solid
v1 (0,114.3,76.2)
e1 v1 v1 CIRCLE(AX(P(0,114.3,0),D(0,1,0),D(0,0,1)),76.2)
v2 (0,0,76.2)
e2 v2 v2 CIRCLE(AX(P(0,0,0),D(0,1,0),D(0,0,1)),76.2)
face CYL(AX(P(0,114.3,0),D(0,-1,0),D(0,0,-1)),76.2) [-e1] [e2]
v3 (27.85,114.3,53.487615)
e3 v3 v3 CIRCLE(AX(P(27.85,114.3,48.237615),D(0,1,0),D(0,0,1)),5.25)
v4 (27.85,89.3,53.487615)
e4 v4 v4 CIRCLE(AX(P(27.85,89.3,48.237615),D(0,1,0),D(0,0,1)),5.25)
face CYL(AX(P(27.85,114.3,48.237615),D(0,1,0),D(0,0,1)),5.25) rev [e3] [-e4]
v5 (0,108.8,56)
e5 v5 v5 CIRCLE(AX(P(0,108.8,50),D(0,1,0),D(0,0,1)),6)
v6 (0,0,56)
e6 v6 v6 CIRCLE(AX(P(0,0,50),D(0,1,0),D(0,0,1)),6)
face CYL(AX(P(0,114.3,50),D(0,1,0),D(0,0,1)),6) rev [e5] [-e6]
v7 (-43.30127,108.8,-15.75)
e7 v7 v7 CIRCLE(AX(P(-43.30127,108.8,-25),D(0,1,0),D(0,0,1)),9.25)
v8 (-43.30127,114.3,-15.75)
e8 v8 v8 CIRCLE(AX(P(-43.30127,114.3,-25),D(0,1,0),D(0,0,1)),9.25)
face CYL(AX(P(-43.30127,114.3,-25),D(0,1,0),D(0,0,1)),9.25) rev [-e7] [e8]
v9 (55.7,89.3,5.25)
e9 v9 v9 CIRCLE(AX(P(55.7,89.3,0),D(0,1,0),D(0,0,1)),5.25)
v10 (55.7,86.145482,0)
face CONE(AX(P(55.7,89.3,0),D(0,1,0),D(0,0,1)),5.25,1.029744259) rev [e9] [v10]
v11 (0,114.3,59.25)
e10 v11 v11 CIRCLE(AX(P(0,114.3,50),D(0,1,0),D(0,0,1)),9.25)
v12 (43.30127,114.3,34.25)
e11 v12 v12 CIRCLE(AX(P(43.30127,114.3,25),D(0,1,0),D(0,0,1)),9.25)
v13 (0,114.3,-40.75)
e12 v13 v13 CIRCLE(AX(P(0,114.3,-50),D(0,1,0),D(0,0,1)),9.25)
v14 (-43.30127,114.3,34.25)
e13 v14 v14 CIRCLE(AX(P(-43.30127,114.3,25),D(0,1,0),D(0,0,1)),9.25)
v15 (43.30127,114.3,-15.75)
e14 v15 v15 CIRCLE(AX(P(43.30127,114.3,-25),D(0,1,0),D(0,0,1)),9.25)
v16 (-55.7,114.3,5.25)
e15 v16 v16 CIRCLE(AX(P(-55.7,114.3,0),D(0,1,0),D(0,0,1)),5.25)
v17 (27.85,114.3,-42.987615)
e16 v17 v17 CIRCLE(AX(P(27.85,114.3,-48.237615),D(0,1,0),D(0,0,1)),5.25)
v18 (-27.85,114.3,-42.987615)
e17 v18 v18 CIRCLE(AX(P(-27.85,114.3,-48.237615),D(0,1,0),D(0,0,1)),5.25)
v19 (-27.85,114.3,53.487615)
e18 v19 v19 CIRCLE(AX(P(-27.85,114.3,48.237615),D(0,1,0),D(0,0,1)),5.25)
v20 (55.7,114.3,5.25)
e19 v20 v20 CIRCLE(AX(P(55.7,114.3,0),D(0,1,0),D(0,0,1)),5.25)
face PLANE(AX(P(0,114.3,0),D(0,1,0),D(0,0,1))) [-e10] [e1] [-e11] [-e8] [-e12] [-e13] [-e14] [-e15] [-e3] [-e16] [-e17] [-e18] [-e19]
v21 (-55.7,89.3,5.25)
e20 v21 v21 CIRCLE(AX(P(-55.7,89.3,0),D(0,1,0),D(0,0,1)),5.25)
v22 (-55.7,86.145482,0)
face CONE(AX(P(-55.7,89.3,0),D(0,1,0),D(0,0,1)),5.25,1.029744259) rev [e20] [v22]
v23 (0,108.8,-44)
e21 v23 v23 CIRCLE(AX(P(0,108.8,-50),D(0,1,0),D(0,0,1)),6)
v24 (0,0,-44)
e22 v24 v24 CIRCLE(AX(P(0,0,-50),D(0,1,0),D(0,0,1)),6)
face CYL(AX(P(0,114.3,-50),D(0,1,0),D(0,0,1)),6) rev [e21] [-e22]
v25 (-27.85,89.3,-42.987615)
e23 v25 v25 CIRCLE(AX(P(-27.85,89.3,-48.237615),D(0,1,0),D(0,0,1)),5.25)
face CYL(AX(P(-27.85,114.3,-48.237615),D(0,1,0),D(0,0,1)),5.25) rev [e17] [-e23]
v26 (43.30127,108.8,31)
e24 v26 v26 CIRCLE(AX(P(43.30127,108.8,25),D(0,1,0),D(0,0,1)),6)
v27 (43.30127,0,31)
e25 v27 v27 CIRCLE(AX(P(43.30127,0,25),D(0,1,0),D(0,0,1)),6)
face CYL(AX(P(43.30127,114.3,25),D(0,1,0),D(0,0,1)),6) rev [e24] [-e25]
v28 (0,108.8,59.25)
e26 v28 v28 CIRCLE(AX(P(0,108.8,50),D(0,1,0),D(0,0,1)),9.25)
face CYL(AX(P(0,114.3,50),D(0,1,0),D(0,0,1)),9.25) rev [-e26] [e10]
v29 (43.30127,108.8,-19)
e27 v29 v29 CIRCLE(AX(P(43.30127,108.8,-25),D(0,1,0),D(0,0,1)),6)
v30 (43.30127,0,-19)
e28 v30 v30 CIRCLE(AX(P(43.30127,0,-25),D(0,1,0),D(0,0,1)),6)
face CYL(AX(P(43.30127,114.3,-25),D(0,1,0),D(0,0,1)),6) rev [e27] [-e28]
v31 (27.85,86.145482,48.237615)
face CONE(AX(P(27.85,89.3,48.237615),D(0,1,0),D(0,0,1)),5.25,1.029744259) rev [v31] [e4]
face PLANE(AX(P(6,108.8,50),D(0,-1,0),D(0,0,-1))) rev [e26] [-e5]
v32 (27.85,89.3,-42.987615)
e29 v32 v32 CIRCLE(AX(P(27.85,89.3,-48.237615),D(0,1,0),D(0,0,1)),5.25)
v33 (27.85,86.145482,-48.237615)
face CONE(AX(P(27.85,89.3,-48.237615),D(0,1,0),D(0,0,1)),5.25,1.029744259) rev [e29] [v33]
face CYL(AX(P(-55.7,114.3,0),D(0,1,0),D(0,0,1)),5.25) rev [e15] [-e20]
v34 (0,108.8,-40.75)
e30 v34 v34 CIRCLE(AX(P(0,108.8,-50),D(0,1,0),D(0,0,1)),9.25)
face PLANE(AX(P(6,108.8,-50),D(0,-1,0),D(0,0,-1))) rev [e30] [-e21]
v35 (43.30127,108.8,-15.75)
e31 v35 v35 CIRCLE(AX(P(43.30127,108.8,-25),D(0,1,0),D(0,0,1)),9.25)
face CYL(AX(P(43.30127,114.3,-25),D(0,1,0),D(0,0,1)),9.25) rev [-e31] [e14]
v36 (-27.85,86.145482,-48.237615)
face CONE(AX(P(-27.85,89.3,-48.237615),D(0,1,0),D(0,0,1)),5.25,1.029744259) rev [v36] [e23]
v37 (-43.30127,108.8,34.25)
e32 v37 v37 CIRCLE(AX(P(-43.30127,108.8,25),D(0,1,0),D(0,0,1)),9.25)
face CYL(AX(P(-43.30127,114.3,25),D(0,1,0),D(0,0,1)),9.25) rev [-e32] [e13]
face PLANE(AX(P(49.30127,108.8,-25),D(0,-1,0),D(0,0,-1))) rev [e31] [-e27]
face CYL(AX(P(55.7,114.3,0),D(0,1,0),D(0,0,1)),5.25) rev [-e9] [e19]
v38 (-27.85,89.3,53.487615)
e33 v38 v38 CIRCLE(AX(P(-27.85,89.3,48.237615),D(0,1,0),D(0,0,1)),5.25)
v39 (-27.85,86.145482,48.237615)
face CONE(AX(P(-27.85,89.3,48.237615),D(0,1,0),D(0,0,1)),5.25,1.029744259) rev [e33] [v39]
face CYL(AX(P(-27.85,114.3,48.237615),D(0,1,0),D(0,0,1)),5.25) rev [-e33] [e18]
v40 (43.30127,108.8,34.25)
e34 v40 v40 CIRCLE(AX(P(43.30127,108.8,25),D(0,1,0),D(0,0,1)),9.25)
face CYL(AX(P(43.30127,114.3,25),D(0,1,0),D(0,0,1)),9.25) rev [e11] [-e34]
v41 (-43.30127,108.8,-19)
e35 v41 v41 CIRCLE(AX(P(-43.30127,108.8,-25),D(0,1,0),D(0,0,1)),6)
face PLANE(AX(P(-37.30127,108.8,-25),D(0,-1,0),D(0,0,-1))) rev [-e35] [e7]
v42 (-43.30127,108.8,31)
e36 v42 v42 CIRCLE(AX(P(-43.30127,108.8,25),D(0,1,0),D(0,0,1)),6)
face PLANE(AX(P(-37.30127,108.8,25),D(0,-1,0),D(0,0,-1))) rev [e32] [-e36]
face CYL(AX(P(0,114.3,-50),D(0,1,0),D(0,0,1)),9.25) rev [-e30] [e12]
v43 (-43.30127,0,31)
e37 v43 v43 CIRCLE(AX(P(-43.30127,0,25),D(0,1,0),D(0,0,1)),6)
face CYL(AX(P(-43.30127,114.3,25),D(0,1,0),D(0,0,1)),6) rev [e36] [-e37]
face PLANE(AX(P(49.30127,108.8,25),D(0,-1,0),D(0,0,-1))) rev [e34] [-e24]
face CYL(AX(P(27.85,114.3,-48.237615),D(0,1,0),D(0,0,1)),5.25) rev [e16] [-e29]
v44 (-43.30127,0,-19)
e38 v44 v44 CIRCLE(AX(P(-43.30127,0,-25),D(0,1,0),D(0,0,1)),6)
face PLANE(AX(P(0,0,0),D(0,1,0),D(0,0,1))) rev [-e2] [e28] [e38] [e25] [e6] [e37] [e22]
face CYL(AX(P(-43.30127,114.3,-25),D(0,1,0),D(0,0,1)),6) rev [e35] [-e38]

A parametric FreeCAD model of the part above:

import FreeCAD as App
import Part
import Sketcher
from FreeCAD import Vector
Q = App.Units.Quantity

doc = App.newDocument("Part")
body = doc.addObject("PartDesign::Body", "Body")

# Sketch on XZ plane
sketch1 = body.newObject("Sketcher::SketchObject", "Sketch")
sketch1.AttachmentSupport = (doc.getObject("XZ_Plane"), [""])
sketch1.MapMode = "FlatFace"
sketch1.addGeometry(Part.Circle(Vector(0, 0, 0), Vector(0, 0, 1), 76.2), False)
sketch1.addConstraint([
    Sketcher.Constraint("Coincident", 0, 3, -1, 1),
    Sketcher.Constraint("Diameter", 0, 152.4),
])
pad1 = body.newObject("PartDesign::Pad", "Pad")
pad1.Profile = sketch1
pad1.Length = 114.3
pad1.Reversed = True

# Sketch on XZ plane
sketch2 = body.newObject("Sketcher::SketchObject", "Sketch001")
sketch2.AttachmentSupport = (doc.getObject("XZ_Plane"), [""])
sketch2.MapMode = "FlatFace"
sketch2.AttachmentOffset = App.Placement(Vector(0, 0, -114.3), App.Rotation())
sketch2.addGeometry([
    Part.Circle(Vector(0, -50, 0), Vector(0, 0, 1), 6),  # 0
    Part.Circle(Vector(43.30127, -25, 0), Vector(0, 0, 1), 6),  # 1
    Part.Circle(Vector(43.30127, 25, 0), Vector(0, 0, 1), 6),  # 2
    Part.Circle(Vector(0, 50, 0), Vector(0, 0, 1), 6),  # 3
    Part.Circle(Vector(-43.30127, 25, 0), Vector(0, 0, 1), 6),  # 4
    Part.Circle(Vector(-43.30127, -25, 0), Vector(0, 0, 1), 6),  # 5
], False)
sketch2.addConstraint([
    Sketcher.Constraint("Equal", 0, 1),
    Sketcher.Constraint("Equal", 1, 2),
    Sketcher.Constraint("Equal", 2, 3),
    Sketcher.Constraint("Equal", 3, 4),
    Sketcher.Constraint("Equal", 4, 5),
    Sketcher.Constraint("Symmetric", 0, 3, 3, 3, -1, 1),
    Sketcher.Constraint("Symmetric", 1, 3, 4, 3, -1, 1),
    Sketcher.Constraint("Symmetric", 2, 3, 5, 3, -1, 1),
    Sketcher.Constraint("Symmetric", 2, 3, 4, 3, -2),
    Sketcher.Constraint("PointOnObject", 0, 3, -2),
    Sketcher.Constraint("Diameter", 0, 12.0),
    Sketcher.Constraint("DistanceY", 0, 3, -1, 1, 50.0),
    Sketcher.Constraint("DistanceY", 1, 3, -1, 1, 25.0),
    Sketcher.Constraint("DistanceX", -1, 1, 1, 3, 43.30127),
])
doc.recompute()
hole = body.newObject("PartDesign::Hole", "Hole")
hole.Profile = sketch2
hole.ThreadType = "None"
hole.Diameter = 12
hole.DepthType = "ThroughAll"
hole.HoleCutType = "Counterbore"
hole.HoleCutDiameter = 18.5
hole.HoleCutDepth = 5.5
hole.Reversed = True

# Sketch on YZ plane
sketch3 = body.newObject("Sketcher::SketchObject", "Sketch002")
sketch3.AttachmentSupport = (doc.getObject("YZ_Plane"), [""])
sketch3.MapMode = "FlatFace"
sketch3.AttachmentOffset = App.Placement(Vector(0, 0, 55.7), App.Rotation())
sketch3.addGeometry([
    Part.LineSegment(Vector(86.145482, 0, 0), Vector(114.3, 0, 0)),
    Part.LineSegment(Vector(114.3, 0, 0), Vector(114.3, 5.25, 0)),
    Part.LineSegment(Vector(114.3, 5.25, 0), Vector(89.3, 5.25, 0)),
    Part.LineSegment(Vector(89.3, 5.25, 0), Vector(86.145482, 0, 0)),
], False)
sketch3.addConstraint([
    Sketcher.Constraint("Coincident", 0, 2, 1, 1),
    Sketcher.Constraint("Coincident", 1, 2, 2, 1),
    Sketcher.Constraint("Coincident", 2, 2, 3, 1),
    Sketcher.Constraint("Coincident", 3, 2, 0, 1),
    Sketcher.Constraint("Horizontal", 0),
    Sketcher.Constraint("Vertical", 1),
    Sketcher.Constraint("Horizontal", 2),
    Sketcher.Constraint("PointOnObject", 0, 2, -1),
    Sketcher.Constraint("DistanceX", 2, 2, 2, 1, 25.0),
    Sketcher.Constraint("Angle", 3, Q("-121 deg")),
    Sketcher.Constraint("DistanceY", 1, 1, 1, 2, 5.25),
    Sketcher.Constraint("DistanceX", -1, 1, 0, 2, 114.3),
])
groove = body.newObject("PartDesign::Groove", "Groove")
groove.Profile = sketch3
groove.ReferenceAxis = (sketch3, ["H_Axis"])
groove.Angle = 360
doc.recompute()

polarpattern = body.newObject("PartDesign::PolarPattern", "PolarPattern")
polarpattern.Originals = [groove]
polarpattern.Axis = (doc.getObject("Y_Axis"), [""])
polarpattern.Angle = 360
polarpattern.Occurrences = 6
body.Tip = polarpattern

doc.recompute()
